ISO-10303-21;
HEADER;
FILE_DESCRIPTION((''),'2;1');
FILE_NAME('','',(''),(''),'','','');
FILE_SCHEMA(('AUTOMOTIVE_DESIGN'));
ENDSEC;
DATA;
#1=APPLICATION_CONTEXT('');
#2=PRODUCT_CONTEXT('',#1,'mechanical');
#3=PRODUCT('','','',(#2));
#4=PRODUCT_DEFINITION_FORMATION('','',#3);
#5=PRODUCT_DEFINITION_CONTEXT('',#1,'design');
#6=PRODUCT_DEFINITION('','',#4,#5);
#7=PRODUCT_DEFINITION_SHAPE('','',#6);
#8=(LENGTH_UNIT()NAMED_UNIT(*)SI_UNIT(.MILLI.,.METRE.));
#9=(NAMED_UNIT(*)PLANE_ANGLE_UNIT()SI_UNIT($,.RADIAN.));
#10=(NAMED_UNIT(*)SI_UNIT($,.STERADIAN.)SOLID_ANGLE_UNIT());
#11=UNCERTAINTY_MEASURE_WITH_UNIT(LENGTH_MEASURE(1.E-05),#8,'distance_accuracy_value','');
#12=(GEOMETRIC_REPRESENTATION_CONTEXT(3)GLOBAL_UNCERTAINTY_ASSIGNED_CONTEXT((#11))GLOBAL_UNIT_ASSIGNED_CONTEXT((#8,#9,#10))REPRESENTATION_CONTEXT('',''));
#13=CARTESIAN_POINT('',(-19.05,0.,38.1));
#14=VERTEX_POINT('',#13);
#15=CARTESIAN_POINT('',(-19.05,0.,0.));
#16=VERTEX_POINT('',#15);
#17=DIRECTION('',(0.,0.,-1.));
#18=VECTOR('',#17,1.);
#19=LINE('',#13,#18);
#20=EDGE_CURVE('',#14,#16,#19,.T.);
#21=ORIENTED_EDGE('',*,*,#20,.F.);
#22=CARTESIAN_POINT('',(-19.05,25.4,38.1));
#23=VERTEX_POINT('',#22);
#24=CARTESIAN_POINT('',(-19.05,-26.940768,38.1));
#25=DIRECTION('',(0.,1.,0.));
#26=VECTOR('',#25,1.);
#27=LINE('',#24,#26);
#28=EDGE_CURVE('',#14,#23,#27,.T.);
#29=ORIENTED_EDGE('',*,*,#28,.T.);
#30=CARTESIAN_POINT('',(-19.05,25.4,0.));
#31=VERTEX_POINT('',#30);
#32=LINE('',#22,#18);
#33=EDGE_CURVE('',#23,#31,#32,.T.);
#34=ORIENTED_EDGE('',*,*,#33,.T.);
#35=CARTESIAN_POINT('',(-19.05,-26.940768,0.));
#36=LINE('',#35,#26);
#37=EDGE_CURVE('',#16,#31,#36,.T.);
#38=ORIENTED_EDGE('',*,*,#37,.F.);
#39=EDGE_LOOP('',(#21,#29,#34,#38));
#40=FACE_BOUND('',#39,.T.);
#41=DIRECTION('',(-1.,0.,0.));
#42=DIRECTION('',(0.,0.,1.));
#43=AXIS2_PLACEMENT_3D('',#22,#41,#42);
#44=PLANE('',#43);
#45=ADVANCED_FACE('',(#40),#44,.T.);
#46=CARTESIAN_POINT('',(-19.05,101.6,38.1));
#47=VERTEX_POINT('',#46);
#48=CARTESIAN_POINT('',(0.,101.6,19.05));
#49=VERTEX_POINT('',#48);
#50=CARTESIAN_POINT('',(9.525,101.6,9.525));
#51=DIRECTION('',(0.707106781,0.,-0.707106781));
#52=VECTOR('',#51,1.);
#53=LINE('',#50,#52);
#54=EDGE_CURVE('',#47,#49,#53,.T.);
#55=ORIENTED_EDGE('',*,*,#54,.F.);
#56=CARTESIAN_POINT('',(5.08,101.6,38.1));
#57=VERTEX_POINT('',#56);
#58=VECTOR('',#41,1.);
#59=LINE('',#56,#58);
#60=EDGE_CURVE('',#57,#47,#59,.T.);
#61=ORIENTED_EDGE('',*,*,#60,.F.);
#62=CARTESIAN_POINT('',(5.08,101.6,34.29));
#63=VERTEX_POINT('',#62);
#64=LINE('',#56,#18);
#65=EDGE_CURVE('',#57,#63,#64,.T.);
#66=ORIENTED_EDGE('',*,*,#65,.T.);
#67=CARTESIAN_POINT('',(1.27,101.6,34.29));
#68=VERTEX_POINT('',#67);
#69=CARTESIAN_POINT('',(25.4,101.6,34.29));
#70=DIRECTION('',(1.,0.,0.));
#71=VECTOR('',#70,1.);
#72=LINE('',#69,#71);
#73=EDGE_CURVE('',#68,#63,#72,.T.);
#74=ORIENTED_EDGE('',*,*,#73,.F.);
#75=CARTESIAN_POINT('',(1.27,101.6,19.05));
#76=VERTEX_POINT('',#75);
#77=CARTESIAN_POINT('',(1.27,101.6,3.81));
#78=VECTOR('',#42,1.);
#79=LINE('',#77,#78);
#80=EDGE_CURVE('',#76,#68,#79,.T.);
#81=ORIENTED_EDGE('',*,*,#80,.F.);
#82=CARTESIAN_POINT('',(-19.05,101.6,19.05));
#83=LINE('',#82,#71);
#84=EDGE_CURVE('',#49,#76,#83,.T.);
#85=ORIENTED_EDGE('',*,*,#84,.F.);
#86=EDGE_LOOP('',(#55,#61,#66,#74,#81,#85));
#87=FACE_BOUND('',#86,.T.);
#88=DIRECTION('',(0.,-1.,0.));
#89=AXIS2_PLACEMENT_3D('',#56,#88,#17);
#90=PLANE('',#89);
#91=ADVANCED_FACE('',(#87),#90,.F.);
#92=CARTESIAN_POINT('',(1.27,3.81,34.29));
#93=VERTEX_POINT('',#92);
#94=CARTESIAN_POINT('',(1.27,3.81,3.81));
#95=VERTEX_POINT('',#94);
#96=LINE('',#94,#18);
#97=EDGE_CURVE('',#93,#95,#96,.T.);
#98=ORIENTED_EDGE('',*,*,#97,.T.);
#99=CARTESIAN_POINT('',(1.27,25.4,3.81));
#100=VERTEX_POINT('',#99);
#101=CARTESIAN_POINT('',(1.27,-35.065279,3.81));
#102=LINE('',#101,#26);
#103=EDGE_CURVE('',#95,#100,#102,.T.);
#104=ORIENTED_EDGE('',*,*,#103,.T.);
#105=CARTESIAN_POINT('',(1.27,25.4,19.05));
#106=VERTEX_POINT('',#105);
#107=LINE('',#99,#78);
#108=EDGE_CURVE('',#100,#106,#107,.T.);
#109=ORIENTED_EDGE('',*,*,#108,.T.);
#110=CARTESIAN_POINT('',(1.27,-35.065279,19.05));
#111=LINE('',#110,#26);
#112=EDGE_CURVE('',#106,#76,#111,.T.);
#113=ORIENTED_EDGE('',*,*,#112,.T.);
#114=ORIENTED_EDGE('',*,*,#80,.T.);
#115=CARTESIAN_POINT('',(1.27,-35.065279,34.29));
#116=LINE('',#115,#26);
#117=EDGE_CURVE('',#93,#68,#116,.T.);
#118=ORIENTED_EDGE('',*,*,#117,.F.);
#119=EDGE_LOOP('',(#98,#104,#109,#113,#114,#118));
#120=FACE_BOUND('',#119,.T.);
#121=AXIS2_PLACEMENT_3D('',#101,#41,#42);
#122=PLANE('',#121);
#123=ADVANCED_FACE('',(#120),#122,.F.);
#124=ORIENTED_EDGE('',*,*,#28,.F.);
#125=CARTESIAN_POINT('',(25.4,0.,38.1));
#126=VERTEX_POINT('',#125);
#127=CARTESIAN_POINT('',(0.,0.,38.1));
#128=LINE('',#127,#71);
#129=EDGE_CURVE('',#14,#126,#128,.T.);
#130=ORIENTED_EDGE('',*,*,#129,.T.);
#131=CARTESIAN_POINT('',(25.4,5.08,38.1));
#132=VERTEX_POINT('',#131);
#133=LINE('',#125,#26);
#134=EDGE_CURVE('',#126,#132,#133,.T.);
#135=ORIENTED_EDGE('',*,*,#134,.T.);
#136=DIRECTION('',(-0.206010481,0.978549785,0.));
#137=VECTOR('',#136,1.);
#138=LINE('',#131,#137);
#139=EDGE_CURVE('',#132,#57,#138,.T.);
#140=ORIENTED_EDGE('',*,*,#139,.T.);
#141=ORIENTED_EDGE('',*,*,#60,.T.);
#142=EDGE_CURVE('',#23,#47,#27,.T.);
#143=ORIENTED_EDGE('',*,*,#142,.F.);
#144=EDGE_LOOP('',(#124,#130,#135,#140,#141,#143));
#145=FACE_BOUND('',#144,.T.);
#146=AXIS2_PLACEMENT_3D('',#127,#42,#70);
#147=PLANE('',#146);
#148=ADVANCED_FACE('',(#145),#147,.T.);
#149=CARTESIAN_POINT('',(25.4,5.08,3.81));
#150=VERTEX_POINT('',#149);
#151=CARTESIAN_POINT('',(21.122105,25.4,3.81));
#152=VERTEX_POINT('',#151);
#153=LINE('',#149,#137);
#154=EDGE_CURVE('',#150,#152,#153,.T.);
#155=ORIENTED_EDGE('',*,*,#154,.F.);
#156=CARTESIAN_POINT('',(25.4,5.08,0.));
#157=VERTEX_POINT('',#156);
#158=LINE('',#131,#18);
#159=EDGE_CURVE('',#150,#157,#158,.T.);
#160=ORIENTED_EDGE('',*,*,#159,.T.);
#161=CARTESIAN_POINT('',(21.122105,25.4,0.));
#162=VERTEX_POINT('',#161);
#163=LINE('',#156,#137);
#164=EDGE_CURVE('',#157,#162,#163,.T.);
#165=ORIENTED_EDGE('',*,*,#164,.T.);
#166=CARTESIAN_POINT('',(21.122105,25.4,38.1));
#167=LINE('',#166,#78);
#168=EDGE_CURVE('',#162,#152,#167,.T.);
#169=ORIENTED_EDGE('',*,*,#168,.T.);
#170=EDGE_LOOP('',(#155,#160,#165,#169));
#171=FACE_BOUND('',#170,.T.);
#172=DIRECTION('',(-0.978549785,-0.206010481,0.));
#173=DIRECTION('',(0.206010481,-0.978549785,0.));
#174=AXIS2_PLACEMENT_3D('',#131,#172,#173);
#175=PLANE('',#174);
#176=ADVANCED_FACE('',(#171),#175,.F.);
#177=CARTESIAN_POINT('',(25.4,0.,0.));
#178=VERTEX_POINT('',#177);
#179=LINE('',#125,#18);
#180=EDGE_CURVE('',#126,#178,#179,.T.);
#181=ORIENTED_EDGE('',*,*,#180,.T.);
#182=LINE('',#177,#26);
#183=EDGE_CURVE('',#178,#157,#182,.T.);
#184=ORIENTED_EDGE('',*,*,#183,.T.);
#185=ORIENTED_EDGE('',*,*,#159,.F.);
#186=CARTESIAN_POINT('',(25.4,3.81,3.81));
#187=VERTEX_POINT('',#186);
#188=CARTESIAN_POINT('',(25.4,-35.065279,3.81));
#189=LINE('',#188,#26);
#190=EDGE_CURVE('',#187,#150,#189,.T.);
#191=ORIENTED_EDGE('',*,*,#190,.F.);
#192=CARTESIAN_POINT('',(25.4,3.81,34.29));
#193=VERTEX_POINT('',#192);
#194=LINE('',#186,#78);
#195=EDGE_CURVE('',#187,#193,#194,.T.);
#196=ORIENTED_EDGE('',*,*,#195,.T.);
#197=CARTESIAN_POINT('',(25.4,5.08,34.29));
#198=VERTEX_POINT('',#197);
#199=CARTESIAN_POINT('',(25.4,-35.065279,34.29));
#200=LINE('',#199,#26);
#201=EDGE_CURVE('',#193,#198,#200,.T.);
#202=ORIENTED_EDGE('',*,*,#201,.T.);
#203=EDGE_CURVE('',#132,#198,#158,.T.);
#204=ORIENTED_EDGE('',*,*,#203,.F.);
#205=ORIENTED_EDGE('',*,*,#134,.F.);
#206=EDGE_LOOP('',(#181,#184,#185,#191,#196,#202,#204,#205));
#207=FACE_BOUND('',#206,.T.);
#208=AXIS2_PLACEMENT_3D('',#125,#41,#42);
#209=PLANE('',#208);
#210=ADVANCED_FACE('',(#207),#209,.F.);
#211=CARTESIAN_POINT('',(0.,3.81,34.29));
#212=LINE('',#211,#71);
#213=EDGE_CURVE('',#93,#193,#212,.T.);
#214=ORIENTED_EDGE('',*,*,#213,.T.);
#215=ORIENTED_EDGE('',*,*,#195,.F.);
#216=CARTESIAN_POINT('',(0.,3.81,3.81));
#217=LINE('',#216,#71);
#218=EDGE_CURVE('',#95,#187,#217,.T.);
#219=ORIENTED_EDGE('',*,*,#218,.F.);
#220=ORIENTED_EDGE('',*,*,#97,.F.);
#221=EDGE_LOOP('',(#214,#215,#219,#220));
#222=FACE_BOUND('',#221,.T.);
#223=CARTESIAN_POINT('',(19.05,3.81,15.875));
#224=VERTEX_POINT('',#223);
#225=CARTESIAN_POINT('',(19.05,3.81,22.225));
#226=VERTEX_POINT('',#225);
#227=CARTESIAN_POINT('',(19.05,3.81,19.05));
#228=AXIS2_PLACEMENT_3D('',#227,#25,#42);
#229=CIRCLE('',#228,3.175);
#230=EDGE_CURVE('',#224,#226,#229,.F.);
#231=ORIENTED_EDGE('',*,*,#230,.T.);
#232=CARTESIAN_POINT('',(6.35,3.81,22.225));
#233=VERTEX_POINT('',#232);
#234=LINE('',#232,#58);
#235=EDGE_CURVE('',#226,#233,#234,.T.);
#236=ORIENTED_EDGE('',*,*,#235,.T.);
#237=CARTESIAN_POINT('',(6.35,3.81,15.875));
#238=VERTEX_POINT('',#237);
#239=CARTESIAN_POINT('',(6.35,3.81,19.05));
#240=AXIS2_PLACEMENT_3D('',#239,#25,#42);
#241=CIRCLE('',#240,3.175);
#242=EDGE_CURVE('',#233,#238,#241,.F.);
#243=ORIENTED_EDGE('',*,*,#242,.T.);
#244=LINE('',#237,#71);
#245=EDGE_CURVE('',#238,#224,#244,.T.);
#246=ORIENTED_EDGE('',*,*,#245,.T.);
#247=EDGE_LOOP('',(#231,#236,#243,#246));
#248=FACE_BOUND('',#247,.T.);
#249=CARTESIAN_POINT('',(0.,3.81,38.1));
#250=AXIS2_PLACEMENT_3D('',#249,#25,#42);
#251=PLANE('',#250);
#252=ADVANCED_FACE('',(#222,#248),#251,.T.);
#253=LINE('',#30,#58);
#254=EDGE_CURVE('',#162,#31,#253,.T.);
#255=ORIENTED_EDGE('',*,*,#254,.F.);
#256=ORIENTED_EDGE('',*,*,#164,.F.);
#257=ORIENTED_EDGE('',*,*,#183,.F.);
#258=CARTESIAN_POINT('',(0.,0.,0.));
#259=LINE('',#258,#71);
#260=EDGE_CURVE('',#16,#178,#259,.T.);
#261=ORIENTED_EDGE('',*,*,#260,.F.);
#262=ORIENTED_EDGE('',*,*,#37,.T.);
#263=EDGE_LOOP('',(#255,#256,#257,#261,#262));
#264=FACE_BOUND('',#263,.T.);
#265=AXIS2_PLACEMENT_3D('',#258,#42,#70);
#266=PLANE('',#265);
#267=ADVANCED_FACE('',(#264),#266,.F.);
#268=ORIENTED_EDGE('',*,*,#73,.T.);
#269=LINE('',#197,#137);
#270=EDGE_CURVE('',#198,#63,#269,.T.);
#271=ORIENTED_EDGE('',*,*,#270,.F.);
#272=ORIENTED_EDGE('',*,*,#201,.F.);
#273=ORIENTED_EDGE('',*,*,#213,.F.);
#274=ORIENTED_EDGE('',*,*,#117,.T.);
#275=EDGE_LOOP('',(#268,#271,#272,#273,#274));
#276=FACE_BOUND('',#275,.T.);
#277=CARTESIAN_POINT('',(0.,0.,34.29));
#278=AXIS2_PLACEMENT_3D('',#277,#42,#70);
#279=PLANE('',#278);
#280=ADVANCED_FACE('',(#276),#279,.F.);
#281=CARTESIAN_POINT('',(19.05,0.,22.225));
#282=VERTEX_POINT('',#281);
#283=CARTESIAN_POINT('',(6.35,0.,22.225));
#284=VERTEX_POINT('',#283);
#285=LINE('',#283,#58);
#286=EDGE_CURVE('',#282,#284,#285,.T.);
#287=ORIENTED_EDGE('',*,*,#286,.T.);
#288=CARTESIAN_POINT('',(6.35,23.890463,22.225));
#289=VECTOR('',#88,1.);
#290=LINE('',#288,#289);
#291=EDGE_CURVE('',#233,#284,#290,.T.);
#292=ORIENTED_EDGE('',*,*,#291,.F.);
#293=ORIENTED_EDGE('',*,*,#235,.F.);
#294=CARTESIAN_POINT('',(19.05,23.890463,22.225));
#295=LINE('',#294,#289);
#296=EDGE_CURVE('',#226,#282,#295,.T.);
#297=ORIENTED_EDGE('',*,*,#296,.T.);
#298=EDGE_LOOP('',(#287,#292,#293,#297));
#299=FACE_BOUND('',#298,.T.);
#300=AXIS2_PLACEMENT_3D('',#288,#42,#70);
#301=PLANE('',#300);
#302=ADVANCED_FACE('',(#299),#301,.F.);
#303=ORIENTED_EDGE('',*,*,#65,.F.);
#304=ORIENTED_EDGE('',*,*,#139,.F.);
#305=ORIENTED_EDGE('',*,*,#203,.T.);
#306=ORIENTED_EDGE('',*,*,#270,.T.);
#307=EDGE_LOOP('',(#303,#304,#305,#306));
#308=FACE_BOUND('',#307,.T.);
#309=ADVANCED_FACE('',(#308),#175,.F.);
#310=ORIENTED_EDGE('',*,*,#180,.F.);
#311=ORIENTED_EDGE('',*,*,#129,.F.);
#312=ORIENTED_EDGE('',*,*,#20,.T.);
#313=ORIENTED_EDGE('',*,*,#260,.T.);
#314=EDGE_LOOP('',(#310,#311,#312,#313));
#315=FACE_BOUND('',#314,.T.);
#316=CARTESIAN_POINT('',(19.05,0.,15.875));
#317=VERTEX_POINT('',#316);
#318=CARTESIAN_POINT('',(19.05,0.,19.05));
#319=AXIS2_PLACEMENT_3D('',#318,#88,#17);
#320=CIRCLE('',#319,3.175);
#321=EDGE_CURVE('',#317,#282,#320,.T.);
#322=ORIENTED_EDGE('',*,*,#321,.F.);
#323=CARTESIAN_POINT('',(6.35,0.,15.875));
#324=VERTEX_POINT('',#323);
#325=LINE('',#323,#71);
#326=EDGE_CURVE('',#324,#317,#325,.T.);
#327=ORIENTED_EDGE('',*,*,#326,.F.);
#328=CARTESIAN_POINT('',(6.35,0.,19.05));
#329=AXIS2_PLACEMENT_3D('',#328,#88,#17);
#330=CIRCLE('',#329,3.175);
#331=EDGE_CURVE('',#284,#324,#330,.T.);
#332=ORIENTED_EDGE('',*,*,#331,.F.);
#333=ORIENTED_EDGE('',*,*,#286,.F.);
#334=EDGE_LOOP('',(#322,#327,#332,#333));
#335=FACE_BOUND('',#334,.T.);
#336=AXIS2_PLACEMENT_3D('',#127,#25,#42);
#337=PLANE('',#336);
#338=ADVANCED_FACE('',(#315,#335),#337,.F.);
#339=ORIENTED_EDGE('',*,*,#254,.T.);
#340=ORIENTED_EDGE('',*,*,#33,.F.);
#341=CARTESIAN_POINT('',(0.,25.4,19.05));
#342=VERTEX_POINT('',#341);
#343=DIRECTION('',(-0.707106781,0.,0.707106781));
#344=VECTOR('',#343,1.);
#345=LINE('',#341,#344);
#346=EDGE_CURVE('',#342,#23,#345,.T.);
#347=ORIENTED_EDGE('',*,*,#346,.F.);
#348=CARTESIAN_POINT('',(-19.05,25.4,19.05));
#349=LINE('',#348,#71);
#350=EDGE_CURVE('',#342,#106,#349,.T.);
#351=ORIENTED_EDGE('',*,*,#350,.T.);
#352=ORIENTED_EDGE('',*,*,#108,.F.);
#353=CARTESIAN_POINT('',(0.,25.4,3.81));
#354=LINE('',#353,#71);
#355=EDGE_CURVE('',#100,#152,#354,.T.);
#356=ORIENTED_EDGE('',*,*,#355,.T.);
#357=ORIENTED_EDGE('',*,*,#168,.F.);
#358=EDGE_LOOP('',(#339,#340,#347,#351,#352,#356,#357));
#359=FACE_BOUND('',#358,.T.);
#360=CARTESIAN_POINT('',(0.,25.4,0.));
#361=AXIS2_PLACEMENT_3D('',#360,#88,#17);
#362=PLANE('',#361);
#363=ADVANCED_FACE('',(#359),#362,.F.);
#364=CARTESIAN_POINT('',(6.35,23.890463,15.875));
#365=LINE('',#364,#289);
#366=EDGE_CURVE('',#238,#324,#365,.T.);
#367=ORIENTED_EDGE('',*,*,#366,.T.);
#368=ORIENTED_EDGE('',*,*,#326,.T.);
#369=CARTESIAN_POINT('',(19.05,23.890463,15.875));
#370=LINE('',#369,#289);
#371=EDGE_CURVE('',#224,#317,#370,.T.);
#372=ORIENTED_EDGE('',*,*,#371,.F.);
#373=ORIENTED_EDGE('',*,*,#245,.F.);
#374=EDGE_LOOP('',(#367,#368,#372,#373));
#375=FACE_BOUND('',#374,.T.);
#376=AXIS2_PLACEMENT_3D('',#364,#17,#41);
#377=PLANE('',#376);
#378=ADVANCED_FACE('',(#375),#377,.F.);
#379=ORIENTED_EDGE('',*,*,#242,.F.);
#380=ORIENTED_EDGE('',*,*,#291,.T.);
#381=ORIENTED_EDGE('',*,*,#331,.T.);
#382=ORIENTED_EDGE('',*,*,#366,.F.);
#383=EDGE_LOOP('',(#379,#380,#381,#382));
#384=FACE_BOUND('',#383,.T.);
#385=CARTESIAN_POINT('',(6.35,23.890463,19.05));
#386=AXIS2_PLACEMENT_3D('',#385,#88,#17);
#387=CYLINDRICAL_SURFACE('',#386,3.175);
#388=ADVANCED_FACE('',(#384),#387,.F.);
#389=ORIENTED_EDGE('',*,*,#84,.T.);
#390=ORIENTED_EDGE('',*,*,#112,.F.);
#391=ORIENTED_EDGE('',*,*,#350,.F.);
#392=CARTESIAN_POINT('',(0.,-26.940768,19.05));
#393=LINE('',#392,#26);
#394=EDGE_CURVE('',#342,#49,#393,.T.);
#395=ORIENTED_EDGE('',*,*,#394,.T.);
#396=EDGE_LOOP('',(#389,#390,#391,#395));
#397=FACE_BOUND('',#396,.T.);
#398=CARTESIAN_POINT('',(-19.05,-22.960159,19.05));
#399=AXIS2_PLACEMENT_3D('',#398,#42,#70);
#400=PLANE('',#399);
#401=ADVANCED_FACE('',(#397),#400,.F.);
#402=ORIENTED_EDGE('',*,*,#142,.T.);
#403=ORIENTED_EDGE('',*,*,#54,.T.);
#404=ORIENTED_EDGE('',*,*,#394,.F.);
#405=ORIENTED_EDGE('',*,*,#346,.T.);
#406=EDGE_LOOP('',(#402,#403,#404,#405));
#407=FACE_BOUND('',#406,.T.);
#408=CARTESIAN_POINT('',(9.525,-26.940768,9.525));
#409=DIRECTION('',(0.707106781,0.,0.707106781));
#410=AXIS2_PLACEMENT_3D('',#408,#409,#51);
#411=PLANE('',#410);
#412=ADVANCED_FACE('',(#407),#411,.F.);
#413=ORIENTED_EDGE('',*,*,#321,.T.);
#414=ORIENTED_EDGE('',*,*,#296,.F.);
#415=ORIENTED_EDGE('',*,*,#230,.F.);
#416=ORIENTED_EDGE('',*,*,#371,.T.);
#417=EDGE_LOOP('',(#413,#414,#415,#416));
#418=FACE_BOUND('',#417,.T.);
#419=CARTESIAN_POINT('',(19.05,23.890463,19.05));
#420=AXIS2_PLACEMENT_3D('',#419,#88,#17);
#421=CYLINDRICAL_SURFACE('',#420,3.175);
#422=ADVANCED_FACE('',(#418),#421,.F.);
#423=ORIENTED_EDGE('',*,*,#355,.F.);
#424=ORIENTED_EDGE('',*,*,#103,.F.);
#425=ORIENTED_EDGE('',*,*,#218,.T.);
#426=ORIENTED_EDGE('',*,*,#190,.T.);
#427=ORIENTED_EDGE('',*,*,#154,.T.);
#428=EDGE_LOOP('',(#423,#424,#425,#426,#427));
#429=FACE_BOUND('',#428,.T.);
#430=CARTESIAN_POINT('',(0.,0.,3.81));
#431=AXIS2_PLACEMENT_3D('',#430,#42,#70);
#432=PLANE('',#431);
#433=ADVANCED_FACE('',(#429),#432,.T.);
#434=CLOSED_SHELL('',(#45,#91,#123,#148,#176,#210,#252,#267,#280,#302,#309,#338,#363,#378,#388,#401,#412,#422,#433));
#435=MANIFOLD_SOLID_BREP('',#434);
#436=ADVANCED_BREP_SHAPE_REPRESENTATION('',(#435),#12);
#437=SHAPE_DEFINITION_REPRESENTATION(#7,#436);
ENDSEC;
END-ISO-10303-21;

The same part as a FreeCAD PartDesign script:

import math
import FreeCAD as App
import Part
import Sketcher
from FreeCAD import Vector
Q = App.Units.Quantity


def faces_at(feature, points):
    """Names of the faces that lie closest to the given points."""
    faces = feature.Shape.Faces
    near = lambda p: min(range(len(faces)), key=lambda i: faces[i].distToShape(Part.Vertex(*p))[0])
    return sorted({f"Face{near(p) + 1}" for p in points})


def add_polygon(sketch, points):
    """Adds a closed chain of lines whose ends are joined by coincident constraints."""
    first, n = sketch.GeometryCount, len(points)
    for a, b in zip(points, points[1:] + points[:1]):
        sketch.addGeometry(Part.LineSegment(App.Vector(*a, 0), App.Vector(*b, 0)), False)
    for i in range(n):
        sketch.addConstraint(Sketcher.Constraint("Coincident", first + i, 2, first + (i + 1) % n, 1))

doc = App.newDocument("Part")
body = doc.addObject("PartDesign::Body", "Body")

# Sketch on XY plane
sketch1 = body.newObject("Sketcher::SketchObject", "Sketch")
sketch1.AttachmentSupport = (doc.getObject("XY_Plane"), [""])
sketch1.MapMode = "FlatFace"
add_polygon(sketch1, [(0, 0), (25.4, 0), (25.4, 5.08), (5.08, 101.6), (0, 101.6)])  # lines 0-4
sketch1.addConstraint([
    Sketcher.Constraint("Horizontal", 0),
    Sketcher.Constraint("Vertical", 1),
    Sketcher.Constraint("Horizontal", 3),
    Sketcher.Constraint("Vertical", 4),
    Sketcher.Constraint("Coincident", 4, 2, -1, 1),
    Sketcher.Constraint("Equal", 3, 1),
    Sketcher.Constraint("DistanceX", 0, 1, 0, 2, Q("1 in")),
    Sketcher.Constraint("DistanceY", 4, 2, 4, 1, Q("4 in")),
    Sketcher.Constraint("DistanceX", 3, 2, 3, 1, Q("0.2 in")),
])
pad1 = body.newObject("PartDesign::Pad", "Pad")
pad1.Profile = sketch1
pad1.Length = Q("1.5 in")
doc.recompute()

thickness = body.newObject("PartDesign::Thickness", "Thickness")
thickness.Base = (pad1, faces_at(pad1, [(15.24, 53.34, 19.05)]))
thickness.Value = Q("0.15 in")
thickness.Reversed = True
thickness.Join = "Intersection"

# Sketch on XZ plane
sketch2 = body.newObject("Sketcher::SketchObject", "Sketch001")
sketch2.AttachmentSupport = (doc.getObject("XZ_Plane"), [""])
sketch2.MapMode = "FlatFace"
sketch2.addGeometry([
    Part.LineSegment(Vector(19.05, 22.225, 0), Vector(6.35, 22.225, 0)),
    Part.ArcOfCircle(Part.Circle(Vector(6.35, 19.05, 0), Vector(0, 0, 1), 3.175), math.radians(90), math.radians(270)),
    Part.LineSegment(Vector(6.35, 15.875, 0), Vector(19.05, 15.875, 0)),
    Part.ArcOfCircle(Part.Circle(Vector(19.05, 19.05, 0), Vector(0, 0, 1), 3.175), math.radians(-90), math.radians(90)),
], False)
sketch2.addConstraint([
    Sketcher.Constraint("Tangent", 0, 2, 1, 1),
    Sketcher.Constraint("Tangent", 1, 2, 2, 1),
    Sketcher.Constraint("Tangent", 2, 2, 3, 1),
    Sketcher.Constraint("Tangent", 3, 2, 0, 1),
    Sketcher.Constraint("Horizontal", 0),
    Sketcher.Constraint("Horizontal", 2),
    Sketcher.Constraint("DistanceX", 0, 2, 0, 1, Q("0.5 in")),
    Sketcher.Constraint("Radius", 1, Q("0.125 in")),
    Sketcher.Constraint("DistanceX", -1, 1, 1, 3, Q("0.25 in")),
    Sketcher.Constraint("DistanceY", -1, 1, 1, 3, Q("0.75 in")),
])
pocket1 = body.newObject("PartDesign::Pocket", "Pocket")
pocket1.Profile = sketch2
pocket1.Length = Q("0.15 in")

# Sketch on XZ plane
sketch3 = body.newObject("Sketcher::SketchObject", "Sketch002")
sketch3.AttachmentSupport = (doc.getObject("XZ_Plane"), [""])
sketch3.MapMode = "FlatFace"
sketch3.AttachmentOffset = App.Placement(Vector(0, 0, -4 * 25.4), App.Rotation())
add_polygon(sketch3, [(-19.05, 0), (0, 19.05), (0, 0)])  # lines 0-2
add_polygon(sketch3, [(0, 38.1), (0, 19.05), (-19.05, 38.1)])  # lines 3-5
sketch3.addConstraint([
    Sketcher.Constraint("Vertical", 1),
    Sketcher.Constraint("Horizontal", 2),
    Sketcher.Constraint("Vertical", 3),
    Sketcher.Constraint("Horizontal", 5),
    Sketcher.Constraint("Coincident", 1, 2, -1, 1),
    Sketcher.Constraint("Coincident", 3, 2, 0, 2),
    Sketcher.Constraint("Perpendicular", 0, 4),
    Sketcher.Constraint("Vertical", 2, 2, 4, 2),
    Sketcher.Constraint("Equal", 5, 1),
    Sketcher.Constraint("DistanceX", 2, 2, 2, 1, Q("0.75 in")),
])
pad2 = body.newObject("PartDesign::Pad", "Pad001")
pad2.Profile = sketch3
pad2.Length = Q("4 in")

# Sketch on XZ plane
sketch4 = body.newObject("Sketcher::SketchObject", "Sketch003")
sketch4.AttachmentSupport = (doc.getObject("XZ_Plane"), [""])
sketch4.MapMode = "FlatFace"
sketch4.AttachmentOffset = App.Placement(Vector(0, 0, -4 * 25.4), App.Rotation())
add_polygon(sketch4, [(1.27, 3.81), (1.27, 34.29), (25.4, 34.29), (25.4, 3.81)])  # lines 0-3
sketch4.addConstraint([
    Sketcher.Constraint("Vertical", 0),
    Sketcher.Constraint("Horizontal", 1),
    Sketcher.Constraint("Vertical", 2),
    Sketcher.Constraint("Horizontal", 3),
    Sketcher.Constraint("DistanceY", 0, 1, 0, 2, Q("1.2 in")),
    Sketcher.Constraint("DistanceX", -1, 1, 1, 2, Q("1 in")),
    Sketcher.Constraint("DistanceX", 1, 1, 1, 2, Q("0.95 in")),
    Sketcher.Constraint("DistanceY", -1, 1, 0, 2, Q("1.35 in")),
])
pocket2 = body.newObject("PartDesign::Pocket", "Pocket001")
pocket2.Profile = sketch4
pocket2.Length = Q("3.85 in")
pocket2.Reversed = True

# Sketch on XZ plane
sketch5 = body.newObject("Sketcher::SketchObject", "Sketch004")
sketch5.AttachmentSupport = (doc.getObject("XZ_Plane"), [""])
sketch5.MapMode = "FlatFace"
add_polygon(sketch5, [(-19.05, 0), (0, 19.05), (-19.05, 38.1)])  # lines 0-2
sketch5.addConstraint([
    Sketcher.Constraint("Vertical", 2),
    Sketcher.Constraint("PointOnObject", 0, 2, -2),
    Sketcher.Constraint("PointOnObject", 2, 2, -1),
    Sketcher.Constraint("Perpendicular", 0, 1),
    Sketcher.Constraint("Equal", 0, 1),
    Sketcher.Constraint("DistanceY", 2, 2, 2, 1, Q("1.5 in")),
])
pad3 = body.newObject("PartDesign::Pad", "Pad002")
pad3.Profile = sketch5
pad3.Length = Q("1 in")
pad3.Reversed = True

# Sketch on XZ plane
sketch6 = body.newObject("Sketcher::SketchObject", "Sketch005")
sketch6.AttachmentSupport = (doc.getObject("XZ_Plane"), [""])
sketch6.MapMode = "FlatFace"
sketch6.AttachmentOffset = App.Placement(Vector(0, 0, -4 * 25.4), App.Rotation())
add_polygon(sketch6, [(-19.05, 0), (-19.05, 19.05), (25.4, 19.05), (25.4, 0)])  # lines 0-3
sketch6.addConstraint([
    Sketcher.Constraint("Vertical", 0),
    Sketcher.Constraint("Horizontal", 1),
    Sketcher.Constraint("Vertical", 2),
    Sketcher.Constraint("Horizontal", 3),
    Sketcher.Constraint("PointOnObject", 2, 2, -1),
    Sketcher.Constraint("DistanceX", -1, 1, 1, 2, Q("1 in")),
    Sketcher.Constraint("DistanceX", 1, 1, 1, 2, Q("1.75 in")),
    Sketcher.Constraint("DistanceY", 0, 1, 0, 2, Q("0.75 in")),
])
pocket3 = body.newObject("PartDesign::Pocket", "Pocket002")
pocket3.Profile = sketch6
pocket3.Length = Q("3 in")
pocket3.Reversed = True

doc.recompute()
